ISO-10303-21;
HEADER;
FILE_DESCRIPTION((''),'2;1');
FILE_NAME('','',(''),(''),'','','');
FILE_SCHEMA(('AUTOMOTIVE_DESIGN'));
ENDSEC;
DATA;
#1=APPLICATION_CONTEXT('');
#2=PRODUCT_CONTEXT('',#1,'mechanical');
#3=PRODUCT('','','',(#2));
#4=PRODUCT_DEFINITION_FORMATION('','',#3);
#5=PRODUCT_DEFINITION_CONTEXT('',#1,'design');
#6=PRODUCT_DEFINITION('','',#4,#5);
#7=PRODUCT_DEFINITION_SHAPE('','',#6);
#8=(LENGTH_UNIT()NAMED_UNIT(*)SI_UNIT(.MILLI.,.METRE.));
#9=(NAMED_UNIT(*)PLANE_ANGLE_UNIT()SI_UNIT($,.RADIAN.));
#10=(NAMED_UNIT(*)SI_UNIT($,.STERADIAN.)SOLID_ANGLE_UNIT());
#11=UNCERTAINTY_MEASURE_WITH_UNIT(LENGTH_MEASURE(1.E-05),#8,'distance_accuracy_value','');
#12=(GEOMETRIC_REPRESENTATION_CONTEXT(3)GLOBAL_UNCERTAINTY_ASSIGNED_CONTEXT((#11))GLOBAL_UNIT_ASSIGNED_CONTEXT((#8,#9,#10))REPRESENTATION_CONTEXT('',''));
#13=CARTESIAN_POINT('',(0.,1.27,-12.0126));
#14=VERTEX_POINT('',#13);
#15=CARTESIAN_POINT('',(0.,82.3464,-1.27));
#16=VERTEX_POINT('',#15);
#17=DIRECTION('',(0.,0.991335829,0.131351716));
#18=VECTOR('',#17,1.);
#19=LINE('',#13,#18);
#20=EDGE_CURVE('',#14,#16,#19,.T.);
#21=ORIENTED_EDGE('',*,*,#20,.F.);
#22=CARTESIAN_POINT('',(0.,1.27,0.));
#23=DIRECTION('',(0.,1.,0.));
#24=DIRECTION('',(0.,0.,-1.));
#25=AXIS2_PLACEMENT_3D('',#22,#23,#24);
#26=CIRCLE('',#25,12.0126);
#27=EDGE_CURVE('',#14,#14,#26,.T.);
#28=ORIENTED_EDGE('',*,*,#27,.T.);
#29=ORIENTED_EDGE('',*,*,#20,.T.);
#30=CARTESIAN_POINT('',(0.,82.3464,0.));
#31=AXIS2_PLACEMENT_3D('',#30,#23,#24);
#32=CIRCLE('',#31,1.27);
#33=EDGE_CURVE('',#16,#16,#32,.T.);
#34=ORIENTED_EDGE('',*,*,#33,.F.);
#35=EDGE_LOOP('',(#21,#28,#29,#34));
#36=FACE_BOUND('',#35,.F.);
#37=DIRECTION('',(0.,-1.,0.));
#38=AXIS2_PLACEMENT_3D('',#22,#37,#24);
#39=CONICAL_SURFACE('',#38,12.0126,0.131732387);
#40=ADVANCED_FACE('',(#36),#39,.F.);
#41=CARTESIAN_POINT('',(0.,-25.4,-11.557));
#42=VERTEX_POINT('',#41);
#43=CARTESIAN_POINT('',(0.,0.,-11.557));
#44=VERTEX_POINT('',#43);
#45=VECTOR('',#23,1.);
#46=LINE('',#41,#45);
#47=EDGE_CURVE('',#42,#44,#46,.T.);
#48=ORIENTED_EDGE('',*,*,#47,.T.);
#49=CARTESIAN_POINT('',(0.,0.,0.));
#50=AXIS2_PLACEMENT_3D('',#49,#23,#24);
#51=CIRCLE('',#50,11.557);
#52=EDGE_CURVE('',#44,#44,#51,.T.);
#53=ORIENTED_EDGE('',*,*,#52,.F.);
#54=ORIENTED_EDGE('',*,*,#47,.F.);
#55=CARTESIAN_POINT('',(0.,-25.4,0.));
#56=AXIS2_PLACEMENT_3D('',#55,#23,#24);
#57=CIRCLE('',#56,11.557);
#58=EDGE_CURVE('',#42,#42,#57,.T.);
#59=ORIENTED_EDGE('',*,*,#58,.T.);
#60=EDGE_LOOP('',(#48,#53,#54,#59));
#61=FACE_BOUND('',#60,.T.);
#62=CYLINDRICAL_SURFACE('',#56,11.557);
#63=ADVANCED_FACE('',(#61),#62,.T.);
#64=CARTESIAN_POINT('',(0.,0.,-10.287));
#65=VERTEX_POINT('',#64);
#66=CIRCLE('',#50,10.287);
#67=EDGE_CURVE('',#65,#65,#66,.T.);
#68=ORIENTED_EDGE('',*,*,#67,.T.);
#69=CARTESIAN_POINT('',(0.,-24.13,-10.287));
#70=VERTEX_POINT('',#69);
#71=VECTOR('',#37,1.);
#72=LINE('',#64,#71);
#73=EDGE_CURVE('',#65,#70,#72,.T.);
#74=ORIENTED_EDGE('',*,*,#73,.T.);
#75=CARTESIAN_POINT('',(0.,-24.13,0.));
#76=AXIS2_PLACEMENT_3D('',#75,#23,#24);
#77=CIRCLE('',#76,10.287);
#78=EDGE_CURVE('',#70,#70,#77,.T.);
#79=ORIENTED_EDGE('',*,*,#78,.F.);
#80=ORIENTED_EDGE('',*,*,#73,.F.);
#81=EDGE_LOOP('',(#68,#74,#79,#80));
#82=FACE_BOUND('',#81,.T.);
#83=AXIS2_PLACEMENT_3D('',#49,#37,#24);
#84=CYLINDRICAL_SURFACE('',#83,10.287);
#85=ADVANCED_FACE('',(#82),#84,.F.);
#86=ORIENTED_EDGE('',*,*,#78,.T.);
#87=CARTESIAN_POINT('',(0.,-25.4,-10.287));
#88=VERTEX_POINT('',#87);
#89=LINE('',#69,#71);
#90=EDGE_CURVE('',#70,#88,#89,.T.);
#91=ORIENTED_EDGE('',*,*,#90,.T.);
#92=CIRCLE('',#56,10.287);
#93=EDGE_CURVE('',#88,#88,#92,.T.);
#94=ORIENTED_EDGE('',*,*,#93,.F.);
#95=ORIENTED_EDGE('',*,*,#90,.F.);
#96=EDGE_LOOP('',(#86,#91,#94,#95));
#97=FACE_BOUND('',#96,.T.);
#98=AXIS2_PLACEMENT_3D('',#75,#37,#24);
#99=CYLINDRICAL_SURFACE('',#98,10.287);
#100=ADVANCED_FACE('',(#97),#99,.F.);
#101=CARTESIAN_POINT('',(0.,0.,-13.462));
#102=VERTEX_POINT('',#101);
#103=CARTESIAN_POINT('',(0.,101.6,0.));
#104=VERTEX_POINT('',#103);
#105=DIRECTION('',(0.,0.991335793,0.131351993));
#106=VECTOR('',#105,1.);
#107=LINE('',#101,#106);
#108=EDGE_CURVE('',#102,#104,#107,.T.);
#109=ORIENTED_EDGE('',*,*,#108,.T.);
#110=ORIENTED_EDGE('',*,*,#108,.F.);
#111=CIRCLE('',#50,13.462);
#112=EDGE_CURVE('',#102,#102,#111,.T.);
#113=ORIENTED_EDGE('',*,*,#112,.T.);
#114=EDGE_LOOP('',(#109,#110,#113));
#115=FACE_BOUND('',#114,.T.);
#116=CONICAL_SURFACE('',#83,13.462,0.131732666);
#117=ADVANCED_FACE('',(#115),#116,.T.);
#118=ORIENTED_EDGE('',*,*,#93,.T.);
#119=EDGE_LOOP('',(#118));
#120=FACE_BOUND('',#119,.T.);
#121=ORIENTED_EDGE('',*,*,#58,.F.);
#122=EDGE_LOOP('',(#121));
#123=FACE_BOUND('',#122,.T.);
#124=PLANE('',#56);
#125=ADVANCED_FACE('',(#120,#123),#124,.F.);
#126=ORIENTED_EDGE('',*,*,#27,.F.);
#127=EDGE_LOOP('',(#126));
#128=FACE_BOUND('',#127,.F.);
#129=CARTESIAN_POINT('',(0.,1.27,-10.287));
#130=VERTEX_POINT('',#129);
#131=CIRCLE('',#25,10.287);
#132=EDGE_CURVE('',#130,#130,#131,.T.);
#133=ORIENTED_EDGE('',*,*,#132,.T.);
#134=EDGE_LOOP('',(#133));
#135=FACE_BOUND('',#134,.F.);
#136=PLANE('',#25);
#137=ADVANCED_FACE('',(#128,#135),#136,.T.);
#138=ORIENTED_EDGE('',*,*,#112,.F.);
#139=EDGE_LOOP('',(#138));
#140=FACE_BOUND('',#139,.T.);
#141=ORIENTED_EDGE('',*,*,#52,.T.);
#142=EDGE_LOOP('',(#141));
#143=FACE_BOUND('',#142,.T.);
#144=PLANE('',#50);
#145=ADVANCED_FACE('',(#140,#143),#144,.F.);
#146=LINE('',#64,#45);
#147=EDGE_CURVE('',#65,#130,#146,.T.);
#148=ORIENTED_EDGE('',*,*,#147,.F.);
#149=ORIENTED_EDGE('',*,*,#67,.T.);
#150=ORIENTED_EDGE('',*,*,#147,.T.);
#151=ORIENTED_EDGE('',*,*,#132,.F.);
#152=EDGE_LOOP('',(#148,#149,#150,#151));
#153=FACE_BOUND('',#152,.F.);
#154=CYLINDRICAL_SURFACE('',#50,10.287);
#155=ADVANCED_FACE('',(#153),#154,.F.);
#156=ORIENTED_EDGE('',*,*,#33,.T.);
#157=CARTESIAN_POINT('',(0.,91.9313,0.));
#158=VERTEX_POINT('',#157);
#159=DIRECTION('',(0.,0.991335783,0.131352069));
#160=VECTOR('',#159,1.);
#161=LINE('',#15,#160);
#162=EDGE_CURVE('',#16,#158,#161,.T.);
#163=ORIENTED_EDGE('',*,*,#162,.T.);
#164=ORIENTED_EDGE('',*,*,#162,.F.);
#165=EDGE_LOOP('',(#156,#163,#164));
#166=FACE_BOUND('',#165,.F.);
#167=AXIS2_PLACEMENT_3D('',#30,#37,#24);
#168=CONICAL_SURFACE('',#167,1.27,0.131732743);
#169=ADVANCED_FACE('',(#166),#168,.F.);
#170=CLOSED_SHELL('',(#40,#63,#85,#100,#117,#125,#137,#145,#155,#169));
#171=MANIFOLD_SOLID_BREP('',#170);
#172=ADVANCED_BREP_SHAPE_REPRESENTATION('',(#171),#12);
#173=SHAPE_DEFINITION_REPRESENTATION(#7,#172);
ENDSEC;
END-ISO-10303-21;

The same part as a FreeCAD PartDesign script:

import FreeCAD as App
import Part
import Sketcher

V = App.Vector
Q = App.Units.Quantity


def add_polygon(sketch, points):
    """Adds a closed chain of lines whose ends are joined by coincident constraints."""
    first, n = sketch.GeometryCount, len(points)
    for a, b in zip(points, points[1:] + points[:1]):
        sketch.addGeometry(Part.LineSegment(App.Vector(*a, 0), App.Vector(*b, 0)), False)
    for i in range(n):
        sketch.addConstraint(Sketcher.Constraint("Coincident", first + i, 2, first + (i + 1) % n, 1))

doc = App.newDocument("Part")
body = doc.addObject("PartDesign::Body", "Body")

sketch1 = body.newObject("Sketcher::SketchObject", "Sketch")
sketch1.AttachmentSupport = (doc.getObject("YZ_Plane"), [""])
sketch1.MapMode = "FlatFace"
add_polygon(sketch1, [(101.6, 0), (91.9, 0), (82.3, -1.3), (1.3, -12), (1.3, -10.3), (-25.4, -10.3), (-25.4, -11.6), (0, -11.6), (0, -13.5)])
sketch1.addConstraint([
    Sketcher.Constraint("Horizontal", 0),
    Sketcher.Constraint("Vertical", 3),
    Sketcher.Constraint("Horizontal", 4),
    Sketcher.Constraint("Vertical", 5),
    Sketcher.Constraint("Horizontal", 6),
    Sketcher.Constraint("Vertical", 7),
    Sketcher.Constraint("PointOnObject", 0, 2, -1),
    Sketcher.Constraint("PointOnObject", 6, 2, -2),
    Sketcher.Constraint("Parallel", 1, 2),
    Sketcher.Constraint("Parallel", 2, 8),
    Sketcher.Constraint("DistanceX", 6, 1, 6, 2, Q("1 in")),
    Sketcher.Constraint("DistanceX", -1, 1, 8, 2, Q("4 in")),
    Sketcher.Constraint("DistanceY", 5, 2, 5, 1, Q("0.05 in")),
    Sketcher.Constraint("DistanceY", 1, 2, -1, 1, Q("0.05 in")),
    Sketcher.Constraint("DistanceX", -1, 1, 2, 2, Q("0.05 in")),
    Sketcher.Constraint("DistanceY", 7, 2, -1, 1, Q("0.53 in")),
    Sketcher.Constraint("DistanceY", 5, 2, -1, 1, Q("0.455 in")),
    Sketcher.Constraint("DistanceX", 0, 2, 0, 1, Q("9.6687 mm")),
])
revolution = body.newObject("PartDesign::Revolution", "Revolution")
revolution.Profile = sketch1
revolution.ReferenceAxis = (sketch1, ["H_Axis"])
revolution.Angle = 360

doc.recompute()
